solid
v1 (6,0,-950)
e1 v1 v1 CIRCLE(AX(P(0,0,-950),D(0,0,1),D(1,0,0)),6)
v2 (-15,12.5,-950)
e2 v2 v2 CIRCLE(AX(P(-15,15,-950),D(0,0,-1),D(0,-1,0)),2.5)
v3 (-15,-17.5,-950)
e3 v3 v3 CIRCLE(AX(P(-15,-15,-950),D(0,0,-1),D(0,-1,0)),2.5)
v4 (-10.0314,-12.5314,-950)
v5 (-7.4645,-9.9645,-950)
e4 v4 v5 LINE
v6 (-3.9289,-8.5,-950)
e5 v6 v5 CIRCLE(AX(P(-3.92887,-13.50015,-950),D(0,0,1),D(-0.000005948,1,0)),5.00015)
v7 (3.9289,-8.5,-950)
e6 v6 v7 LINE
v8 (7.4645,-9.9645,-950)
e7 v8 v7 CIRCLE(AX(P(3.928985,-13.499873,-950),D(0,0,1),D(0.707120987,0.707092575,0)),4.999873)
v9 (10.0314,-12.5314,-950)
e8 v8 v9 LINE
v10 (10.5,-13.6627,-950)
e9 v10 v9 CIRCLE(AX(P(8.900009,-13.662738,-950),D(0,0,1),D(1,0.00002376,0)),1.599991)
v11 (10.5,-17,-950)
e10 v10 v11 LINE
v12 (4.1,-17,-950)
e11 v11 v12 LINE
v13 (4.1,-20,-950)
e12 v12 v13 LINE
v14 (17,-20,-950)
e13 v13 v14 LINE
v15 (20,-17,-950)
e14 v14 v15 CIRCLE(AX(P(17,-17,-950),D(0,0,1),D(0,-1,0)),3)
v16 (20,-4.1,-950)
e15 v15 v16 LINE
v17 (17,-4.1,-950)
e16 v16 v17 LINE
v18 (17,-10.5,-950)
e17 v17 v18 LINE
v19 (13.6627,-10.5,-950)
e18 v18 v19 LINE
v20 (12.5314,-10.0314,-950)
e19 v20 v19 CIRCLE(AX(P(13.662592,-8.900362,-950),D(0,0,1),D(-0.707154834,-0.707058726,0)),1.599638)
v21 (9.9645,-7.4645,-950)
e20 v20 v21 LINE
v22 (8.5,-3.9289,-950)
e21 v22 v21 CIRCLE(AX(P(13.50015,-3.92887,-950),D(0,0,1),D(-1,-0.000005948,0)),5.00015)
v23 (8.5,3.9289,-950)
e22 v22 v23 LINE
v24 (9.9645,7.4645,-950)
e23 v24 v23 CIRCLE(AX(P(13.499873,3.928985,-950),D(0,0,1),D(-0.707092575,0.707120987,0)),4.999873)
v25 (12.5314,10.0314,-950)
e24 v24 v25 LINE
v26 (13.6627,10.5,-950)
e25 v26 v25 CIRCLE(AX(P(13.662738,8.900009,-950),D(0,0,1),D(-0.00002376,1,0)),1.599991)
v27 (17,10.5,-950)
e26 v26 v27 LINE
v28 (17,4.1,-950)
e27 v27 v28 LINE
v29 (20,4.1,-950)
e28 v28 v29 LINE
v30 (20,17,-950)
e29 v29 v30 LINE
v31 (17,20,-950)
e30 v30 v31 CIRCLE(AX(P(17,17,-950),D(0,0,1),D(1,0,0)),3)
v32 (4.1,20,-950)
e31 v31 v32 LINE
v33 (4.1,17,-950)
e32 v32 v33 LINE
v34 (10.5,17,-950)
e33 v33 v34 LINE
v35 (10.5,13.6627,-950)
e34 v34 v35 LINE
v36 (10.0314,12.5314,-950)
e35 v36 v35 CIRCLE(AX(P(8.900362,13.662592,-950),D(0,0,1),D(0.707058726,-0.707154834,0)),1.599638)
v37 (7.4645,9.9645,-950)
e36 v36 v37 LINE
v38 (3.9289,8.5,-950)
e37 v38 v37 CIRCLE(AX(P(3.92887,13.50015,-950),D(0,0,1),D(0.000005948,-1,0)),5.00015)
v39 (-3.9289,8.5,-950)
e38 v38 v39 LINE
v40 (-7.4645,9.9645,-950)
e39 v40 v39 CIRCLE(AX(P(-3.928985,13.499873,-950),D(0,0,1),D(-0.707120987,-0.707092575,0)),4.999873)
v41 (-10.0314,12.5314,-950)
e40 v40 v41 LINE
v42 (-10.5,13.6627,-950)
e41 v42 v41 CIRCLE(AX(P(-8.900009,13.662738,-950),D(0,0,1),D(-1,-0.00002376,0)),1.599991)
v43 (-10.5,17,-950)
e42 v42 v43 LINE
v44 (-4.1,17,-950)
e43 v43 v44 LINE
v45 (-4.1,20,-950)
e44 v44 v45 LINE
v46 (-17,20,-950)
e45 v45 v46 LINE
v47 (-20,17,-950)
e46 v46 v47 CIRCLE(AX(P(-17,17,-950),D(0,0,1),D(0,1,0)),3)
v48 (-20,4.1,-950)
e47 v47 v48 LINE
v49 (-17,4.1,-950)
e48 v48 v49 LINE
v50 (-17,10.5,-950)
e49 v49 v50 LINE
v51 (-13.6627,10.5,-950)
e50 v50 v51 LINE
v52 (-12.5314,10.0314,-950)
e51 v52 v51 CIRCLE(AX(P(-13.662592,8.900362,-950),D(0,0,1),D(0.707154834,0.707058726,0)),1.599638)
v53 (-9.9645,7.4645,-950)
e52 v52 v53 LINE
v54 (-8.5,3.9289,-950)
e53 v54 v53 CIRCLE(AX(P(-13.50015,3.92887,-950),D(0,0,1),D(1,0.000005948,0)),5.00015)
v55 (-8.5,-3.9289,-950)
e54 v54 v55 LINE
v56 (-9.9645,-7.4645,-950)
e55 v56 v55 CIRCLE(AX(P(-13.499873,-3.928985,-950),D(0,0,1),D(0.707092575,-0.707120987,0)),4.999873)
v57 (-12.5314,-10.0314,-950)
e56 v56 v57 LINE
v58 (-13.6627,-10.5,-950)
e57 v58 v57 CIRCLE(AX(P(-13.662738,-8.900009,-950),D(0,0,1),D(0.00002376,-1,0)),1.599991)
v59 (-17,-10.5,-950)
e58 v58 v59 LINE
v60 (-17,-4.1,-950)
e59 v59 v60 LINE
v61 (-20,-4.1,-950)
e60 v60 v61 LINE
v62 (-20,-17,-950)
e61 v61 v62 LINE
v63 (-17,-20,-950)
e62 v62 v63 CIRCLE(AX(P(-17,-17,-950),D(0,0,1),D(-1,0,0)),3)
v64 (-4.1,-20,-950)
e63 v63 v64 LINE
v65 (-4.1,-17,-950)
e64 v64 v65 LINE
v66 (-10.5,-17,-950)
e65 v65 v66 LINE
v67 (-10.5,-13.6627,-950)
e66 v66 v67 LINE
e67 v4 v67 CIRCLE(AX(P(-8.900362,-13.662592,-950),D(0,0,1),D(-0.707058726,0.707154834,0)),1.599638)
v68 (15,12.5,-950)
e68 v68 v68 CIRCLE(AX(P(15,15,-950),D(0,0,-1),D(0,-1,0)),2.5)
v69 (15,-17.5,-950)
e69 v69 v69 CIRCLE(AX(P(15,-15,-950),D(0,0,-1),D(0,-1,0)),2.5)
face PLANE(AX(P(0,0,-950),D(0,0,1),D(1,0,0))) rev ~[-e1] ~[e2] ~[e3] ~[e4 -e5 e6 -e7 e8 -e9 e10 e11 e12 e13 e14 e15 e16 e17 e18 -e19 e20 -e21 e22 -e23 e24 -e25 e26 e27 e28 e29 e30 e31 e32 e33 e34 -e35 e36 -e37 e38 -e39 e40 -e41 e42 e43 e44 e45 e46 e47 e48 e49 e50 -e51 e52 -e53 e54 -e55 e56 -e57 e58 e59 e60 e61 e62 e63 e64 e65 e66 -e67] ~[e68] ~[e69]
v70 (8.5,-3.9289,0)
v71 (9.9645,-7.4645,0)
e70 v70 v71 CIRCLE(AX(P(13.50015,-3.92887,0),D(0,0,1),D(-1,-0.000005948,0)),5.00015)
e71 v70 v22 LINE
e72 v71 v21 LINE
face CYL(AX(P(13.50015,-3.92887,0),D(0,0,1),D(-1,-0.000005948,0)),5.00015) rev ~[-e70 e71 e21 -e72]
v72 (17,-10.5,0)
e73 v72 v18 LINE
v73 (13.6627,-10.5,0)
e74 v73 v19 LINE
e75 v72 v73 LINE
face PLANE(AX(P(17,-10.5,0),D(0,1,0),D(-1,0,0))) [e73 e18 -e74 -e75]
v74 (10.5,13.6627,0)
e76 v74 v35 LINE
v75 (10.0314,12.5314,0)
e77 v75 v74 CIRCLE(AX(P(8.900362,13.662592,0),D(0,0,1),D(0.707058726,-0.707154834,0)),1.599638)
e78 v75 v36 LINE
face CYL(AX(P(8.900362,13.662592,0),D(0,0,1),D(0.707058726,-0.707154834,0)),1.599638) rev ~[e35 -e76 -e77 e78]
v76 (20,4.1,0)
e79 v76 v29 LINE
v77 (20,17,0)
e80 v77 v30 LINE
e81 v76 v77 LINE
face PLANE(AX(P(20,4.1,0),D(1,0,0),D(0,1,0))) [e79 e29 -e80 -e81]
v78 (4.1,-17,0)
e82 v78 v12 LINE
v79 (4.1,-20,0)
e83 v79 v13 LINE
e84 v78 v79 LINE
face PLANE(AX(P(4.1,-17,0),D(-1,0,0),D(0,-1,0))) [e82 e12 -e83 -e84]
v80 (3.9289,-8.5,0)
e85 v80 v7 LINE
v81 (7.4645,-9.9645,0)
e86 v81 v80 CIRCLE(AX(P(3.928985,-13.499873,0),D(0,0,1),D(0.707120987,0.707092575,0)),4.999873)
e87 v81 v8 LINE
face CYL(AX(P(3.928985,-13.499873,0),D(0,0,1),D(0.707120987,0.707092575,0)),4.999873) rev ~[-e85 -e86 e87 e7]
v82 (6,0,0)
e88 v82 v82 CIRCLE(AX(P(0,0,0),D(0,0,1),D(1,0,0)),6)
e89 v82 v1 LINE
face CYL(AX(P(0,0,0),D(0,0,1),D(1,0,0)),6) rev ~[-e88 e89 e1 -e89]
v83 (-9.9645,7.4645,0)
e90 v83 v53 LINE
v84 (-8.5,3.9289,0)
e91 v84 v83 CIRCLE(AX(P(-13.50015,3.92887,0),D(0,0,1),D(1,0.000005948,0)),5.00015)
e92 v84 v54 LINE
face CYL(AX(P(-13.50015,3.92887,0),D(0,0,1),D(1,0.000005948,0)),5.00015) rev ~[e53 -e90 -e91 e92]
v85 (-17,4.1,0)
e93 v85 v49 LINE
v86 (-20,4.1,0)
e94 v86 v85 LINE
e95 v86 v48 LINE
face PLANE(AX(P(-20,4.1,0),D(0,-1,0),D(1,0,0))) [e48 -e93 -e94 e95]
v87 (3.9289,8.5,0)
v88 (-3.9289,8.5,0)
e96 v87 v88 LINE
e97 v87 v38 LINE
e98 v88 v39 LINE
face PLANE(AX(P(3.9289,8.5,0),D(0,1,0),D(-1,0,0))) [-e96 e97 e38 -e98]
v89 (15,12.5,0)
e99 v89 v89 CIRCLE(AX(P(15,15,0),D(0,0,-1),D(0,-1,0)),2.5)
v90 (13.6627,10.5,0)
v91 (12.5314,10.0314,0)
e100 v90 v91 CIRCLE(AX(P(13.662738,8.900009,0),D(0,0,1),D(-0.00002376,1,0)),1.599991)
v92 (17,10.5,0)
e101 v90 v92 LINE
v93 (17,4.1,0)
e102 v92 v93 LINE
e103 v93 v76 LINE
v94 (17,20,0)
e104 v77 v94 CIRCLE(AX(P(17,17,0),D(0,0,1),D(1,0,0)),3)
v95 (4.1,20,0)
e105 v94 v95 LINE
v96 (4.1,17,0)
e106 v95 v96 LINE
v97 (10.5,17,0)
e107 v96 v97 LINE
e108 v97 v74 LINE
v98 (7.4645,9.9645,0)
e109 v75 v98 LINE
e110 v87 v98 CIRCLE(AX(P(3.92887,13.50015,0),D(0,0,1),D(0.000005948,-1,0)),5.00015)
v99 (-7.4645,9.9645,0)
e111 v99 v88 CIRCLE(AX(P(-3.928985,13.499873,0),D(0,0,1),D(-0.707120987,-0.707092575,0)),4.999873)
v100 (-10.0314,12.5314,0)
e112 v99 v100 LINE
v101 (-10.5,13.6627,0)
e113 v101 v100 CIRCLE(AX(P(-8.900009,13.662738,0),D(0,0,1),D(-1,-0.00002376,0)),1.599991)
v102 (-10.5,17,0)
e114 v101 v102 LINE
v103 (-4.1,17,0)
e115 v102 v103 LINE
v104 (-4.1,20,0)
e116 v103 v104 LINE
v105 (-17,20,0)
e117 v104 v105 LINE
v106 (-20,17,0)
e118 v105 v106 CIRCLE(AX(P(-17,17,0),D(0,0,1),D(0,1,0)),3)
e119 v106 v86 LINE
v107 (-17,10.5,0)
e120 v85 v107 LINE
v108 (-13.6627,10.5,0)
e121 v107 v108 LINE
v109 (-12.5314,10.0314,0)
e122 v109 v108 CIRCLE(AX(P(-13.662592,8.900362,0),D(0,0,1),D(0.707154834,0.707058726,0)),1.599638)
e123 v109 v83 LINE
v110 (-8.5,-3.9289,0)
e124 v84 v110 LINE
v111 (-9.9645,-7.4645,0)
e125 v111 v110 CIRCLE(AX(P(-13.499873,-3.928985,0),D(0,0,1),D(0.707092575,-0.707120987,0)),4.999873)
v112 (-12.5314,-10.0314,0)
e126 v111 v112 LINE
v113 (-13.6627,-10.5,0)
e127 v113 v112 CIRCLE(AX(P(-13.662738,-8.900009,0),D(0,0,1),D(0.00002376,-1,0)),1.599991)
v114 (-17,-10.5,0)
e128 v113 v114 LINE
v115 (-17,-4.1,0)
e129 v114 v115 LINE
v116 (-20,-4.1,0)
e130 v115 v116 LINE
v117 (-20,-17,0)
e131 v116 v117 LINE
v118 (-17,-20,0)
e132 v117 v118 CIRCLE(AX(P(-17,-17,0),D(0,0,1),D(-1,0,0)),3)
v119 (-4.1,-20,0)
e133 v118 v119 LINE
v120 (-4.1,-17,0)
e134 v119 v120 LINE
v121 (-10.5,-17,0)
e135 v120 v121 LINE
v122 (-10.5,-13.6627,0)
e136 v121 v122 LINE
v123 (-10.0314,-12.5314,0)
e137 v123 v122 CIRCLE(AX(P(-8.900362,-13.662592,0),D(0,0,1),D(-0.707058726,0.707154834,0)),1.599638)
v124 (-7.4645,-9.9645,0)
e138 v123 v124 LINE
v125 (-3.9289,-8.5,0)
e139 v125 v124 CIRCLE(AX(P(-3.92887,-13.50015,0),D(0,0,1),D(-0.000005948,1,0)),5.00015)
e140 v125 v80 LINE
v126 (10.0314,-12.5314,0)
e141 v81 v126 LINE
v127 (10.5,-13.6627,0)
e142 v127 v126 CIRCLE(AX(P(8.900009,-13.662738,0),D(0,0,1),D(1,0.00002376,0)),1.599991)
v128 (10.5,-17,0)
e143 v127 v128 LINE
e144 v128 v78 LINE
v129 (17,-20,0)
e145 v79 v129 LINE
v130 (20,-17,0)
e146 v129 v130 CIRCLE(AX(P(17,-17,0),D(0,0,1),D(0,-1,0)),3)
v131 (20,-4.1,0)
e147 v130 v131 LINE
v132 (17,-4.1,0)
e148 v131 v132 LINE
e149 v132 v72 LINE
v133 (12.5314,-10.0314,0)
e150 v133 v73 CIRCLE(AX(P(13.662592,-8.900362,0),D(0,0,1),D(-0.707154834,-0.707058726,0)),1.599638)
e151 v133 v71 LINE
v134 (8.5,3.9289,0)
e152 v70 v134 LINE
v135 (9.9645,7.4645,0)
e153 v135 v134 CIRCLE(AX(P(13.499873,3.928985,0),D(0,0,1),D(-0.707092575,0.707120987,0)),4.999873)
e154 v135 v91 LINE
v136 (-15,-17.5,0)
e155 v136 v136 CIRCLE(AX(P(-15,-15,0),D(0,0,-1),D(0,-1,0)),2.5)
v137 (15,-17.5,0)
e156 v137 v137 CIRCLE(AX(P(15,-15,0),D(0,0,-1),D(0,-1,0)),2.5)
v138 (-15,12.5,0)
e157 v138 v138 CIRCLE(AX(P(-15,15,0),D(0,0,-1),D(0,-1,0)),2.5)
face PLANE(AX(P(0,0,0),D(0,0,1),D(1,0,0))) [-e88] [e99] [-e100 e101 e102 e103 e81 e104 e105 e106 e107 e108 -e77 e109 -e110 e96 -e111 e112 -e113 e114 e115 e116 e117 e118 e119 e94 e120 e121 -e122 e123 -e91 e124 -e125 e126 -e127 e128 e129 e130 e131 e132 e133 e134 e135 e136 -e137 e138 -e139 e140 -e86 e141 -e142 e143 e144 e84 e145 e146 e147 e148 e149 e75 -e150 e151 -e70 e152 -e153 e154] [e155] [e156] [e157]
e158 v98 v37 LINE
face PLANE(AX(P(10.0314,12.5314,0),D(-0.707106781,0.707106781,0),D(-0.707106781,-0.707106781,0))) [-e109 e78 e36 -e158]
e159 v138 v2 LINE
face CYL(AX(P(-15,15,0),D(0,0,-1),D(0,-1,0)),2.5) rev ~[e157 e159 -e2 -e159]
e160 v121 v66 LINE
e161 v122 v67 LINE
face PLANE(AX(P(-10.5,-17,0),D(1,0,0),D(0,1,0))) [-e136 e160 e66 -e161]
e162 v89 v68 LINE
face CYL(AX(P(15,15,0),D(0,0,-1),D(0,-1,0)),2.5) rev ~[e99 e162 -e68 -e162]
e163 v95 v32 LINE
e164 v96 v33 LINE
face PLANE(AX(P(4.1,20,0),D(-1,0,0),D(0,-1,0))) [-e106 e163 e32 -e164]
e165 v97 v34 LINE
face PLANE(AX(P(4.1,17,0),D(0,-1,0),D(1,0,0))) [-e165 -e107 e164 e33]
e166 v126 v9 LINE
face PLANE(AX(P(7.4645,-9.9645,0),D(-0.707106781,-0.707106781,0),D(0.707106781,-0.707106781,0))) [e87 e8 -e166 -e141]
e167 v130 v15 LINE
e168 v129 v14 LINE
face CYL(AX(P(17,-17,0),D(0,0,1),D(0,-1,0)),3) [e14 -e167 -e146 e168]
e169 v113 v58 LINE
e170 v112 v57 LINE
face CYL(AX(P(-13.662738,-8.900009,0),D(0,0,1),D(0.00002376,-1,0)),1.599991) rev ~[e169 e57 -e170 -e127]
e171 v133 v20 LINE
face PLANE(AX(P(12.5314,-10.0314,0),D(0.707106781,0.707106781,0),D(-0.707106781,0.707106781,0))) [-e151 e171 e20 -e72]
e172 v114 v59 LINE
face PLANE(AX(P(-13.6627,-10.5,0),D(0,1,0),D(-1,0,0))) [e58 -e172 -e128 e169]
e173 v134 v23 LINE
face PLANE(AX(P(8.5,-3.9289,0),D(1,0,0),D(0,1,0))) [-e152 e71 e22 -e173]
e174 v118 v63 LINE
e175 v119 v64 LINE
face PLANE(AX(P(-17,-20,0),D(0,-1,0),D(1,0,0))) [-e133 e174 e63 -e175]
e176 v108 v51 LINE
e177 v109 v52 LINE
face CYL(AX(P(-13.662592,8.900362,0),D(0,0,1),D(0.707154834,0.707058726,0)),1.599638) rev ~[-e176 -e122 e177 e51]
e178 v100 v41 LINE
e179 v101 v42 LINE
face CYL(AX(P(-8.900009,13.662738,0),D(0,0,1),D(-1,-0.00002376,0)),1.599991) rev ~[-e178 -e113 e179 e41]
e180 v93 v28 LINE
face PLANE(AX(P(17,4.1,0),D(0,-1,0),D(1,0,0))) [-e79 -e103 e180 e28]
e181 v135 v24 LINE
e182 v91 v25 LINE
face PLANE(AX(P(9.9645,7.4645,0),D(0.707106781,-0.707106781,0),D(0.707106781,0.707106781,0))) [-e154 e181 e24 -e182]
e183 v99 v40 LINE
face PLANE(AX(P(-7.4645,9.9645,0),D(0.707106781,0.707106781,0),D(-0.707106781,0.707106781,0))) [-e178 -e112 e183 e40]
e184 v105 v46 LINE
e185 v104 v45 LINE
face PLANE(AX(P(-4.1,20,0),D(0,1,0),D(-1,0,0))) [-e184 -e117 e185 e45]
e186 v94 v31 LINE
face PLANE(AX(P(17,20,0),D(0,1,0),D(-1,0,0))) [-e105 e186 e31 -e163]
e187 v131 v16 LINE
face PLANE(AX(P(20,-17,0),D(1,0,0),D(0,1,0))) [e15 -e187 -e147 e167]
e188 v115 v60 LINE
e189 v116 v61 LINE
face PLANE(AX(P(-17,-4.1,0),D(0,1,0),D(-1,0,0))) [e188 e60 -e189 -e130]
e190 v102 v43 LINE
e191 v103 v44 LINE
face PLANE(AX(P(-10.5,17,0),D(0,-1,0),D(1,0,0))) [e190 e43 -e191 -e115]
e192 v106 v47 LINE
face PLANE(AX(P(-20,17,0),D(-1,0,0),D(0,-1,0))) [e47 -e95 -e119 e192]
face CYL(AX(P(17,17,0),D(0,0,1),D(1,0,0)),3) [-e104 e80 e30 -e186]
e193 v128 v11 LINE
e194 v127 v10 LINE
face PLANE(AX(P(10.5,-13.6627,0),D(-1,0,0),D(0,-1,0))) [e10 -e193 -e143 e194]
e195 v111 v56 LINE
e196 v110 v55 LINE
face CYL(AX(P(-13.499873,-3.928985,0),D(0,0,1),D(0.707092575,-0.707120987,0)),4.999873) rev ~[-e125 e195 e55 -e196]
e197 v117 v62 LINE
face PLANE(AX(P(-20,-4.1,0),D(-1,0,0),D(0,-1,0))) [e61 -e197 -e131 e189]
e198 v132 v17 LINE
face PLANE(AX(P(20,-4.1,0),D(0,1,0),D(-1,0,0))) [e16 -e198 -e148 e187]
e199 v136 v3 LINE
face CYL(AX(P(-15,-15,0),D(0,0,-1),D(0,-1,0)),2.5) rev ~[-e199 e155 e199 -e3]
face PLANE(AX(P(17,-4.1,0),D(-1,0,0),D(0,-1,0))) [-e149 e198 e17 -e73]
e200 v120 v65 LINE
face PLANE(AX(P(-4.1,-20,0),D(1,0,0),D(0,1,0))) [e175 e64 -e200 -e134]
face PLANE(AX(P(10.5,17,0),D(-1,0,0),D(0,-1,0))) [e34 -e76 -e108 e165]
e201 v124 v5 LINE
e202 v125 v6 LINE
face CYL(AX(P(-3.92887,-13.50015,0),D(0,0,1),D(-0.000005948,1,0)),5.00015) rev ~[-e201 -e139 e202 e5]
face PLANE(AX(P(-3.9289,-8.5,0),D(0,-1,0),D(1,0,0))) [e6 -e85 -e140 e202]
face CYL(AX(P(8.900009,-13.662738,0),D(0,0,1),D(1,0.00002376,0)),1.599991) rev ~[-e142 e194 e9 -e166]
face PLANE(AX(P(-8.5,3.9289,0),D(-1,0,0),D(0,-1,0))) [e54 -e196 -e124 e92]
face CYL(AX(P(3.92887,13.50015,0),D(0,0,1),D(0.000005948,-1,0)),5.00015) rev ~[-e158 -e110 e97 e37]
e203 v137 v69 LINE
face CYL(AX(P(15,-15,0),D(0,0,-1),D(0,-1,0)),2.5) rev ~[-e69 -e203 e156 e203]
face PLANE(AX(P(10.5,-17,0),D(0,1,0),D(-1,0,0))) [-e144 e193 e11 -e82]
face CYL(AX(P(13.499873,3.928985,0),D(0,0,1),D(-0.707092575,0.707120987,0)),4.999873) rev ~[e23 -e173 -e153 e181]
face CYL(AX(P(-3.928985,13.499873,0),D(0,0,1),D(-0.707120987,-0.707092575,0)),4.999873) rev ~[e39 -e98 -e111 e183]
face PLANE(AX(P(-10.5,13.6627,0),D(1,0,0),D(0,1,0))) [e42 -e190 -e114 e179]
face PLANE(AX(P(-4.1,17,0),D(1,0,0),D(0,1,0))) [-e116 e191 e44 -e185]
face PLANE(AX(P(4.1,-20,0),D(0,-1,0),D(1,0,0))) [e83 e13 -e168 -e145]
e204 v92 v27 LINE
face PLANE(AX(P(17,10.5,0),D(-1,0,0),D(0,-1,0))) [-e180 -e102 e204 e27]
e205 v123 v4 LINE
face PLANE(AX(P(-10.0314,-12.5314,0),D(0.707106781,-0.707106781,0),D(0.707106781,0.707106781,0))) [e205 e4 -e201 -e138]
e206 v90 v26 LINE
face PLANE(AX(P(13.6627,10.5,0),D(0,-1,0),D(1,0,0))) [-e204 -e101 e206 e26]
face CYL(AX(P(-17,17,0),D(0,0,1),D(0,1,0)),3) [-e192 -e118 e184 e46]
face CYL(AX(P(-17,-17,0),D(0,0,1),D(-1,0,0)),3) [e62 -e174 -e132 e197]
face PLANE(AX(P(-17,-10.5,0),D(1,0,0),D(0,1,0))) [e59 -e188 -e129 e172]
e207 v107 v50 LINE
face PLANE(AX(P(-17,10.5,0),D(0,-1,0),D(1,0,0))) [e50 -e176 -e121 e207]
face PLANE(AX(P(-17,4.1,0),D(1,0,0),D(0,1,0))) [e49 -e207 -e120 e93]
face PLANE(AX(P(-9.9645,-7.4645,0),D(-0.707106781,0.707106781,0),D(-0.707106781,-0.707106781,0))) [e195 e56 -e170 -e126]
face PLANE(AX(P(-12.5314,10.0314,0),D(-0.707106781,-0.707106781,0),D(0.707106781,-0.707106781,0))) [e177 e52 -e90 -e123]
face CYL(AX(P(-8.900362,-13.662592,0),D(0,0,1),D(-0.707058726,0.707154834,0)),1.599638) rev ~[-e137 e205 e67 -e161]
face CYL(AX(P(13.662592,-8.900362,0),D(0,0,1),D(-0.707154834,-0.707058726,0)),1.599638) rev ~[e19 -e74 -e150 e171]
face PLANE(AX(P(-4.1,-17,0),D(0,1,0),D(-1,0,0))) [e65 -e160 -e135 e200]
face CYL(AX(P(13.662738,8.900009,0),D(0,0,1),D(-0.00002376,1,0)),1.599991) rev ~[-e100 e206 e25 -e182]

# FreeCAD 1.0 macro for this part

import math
import FreeCAD as App
import Part
import Sketcher
from FreeCAD import Vector
Q = App.Units.Quantity

doc = App.newDocument("Part")
body = doc.addObject("PartDesign::Body", "Body")

# Sketch on XY plane
sketch1 = body.newObject("Sketcher::SketchObject", "Sketch")
sketch1.AttachmentSupport = (doc.getObject("XY_Plane"), [""])
sketch1.MapMode = "FlatFace"
sketch1.addGeometry(Part.LineSegment(Vector(-20, -4.1, 0), Vector(-20, -17, 0)), False)
sketch1.addGeometry(Part.ArcOfCircle(Part.Circle(Vector(-17, -17, 0), Vector(0, 0, 1), 3), math.radians(180), math.radians(270)), False)
sketch1.addGeometry(Part.LineSegment(Vector(-17, -20, 0), Vector(-4.1, -20, 0)), False)
sketch1.addGeometry(Part.LineSegment(Vector(-4.1, -20, 0), Vector(-4.1, -17, 0)), False)
sketch1.addGeometry(Part.LineSegment(Vector(-4.1, -17, 0), Vector(-10.5, -17, 0)), False)
sketch1.addGeometry(Part.LineSegment(Vector(-10.5, -17, 0), Vector(-10.5, -13.7, 0)), False)
sketch1.addGeometry(Part.ArcOfCircle(Part.Circle(Vector(-8.9, -13.7, 0), Vector(0, 0, 1), 1.6), math.radians(135), math.radians(180)), False)
sketch1.addGeometry(Part.LineSegment(Vector(-10, -12.5, 0), Vector(-7.5, -10, 0)), False)
sketch1.addGeometry(Part.ArcOfCircle(Part.Circle(Vector(-3.9, -13.5, 0), Vector(0, 0, 1), 5), math.radians(90), math.radians(135)), False)
sketch1.addGeometry(Part.LineSegment(Vector(-3.9, -8.5, 0), Vector(3.9, -8.5, 0)), False)
sketch1.addGeometry(Part.ArcOfCircle(Part.Circle(Vector(3.9, -13.5, 0), Vector(0, 0, 1), 5), math.radians(45), math.radians(90)), False)
sketch1.addGeometry(Part.LineSegment(Vector(7.5, -10, 0), Vector(10, -12.5, 0)), False)
sketch1.addGeometry(Part.ArcOfCircle(Part.Circle(Vector(8.9, -13.7, 0), Vector(0, 0, 1), 1.6), math.radians(0), math.radians(45)), False)
sketch1.addGeometry(Part.LineSegment(Vector(10.5, -13.7, 0), Vector(10.5, -17, 0)), False)
sketch1.addGeometry(Part.LineSegment(Vector(10.5, -17, 0), Vector(4.1, -17, 0)), False)
sketch1.addGeometry(Part.LineSegment(Vector(4.1, -17, 0), Vector(4.1, -20, 0)), False)
sketch1.addGeometry(Part.LineSegment(Vector(4.1, -20, 0), Vector(17, -20, 0)), False)
sketch1.addGeometry(Part.ArcOfCircle(Part.Circle(Vector(17, -17, 0), Vector(0, 0, 1), 3), math.radians(-90), math.radians(0)), False)
sketch1.addGeometry(Part.LineSegment(Vector(20, -17, 0), Vector(20, -4.1, 0)), False)
sketch1.addGeometry(Part.LineSegment(Vector(20, -4.1, 0), Vector(17, -4.1, 0)), False)
sketch1.addGeometry(Part.LineSegment(Vector(17, -4.1, 0), Vector(17, -10.5, 0)), False)
sketch1.addGeometry(Part.LineSegment(Vector(17, -10.5, 0), Vector(13.7, -10.5, 0)), False)
sketch1.addGeometry(Part.ArcOfCircle(Part.Circle(Vector(13.7, -8.9, 0), Vector(0, 0, 1), 1.6), math.radians(-135), math.radians(-90)), False)
sketch1.addGeometry(Part.LineSegment(Vector(12.5, -10, 0), Vector(10, -7.5, 0)), False)
sketch1.addGeometry(Part.ArcOfCircle(Part.Circle(Vector(13.5, -3.9, 0), Vector(0, 0, 1), 5), math.radians(180), math.radians(225)), False)
sketch1.addGeometry(Part.LineSegment(Vector(8.5, -3.9, 0), Vector(8.5, 3.9, 0)), False)
sketch1.addGeometry(Part.ArcOfCircle(Part.Circle(Vector(13.5, 3.9, 0), Vector(0, 0, 1), 5), math.radians(135), math.radians(180)), False)
sketch1.addGeometry(Part.LineSegment(Vector(10, 7.5, 0), Vector(12.5, 10, 0)), False)
sketch1.addGeometry(Part.ArcOfCircle(Part.Circle(Vector(13.7, 8.9, 0), Vector(0, 0, 1), 1.6), math.radians(90), math.radians(135)), False)
sketch1.addGeometry(Part.LineSegment(Vector(13.7, 10.5, 0), Vector(17, 10.5, 0)), False)
sketch1.addGeometry(Part.LineSegment(Vector(17, 10.5, 0), Vector(17, 4.1, 0)), False)
sketch1.addGeometry(Part.LineSegment(Vector(17, 4.1, 0), Vector(20, 4.1, 0)), False)
sketch1.addGeometry(Part.LineSegment(Vector(20, 4.1, 0), Vector(20, 17, 0)), False)
sketch1.addGeometry(Part.ArcOfCircle(Part.Circle(Vector(17, 17, 0), Vector(0, 0, 1), 3), math.radians(0), math.radians(90)), False)
sketch1.addGeometry(Part.LineSegment(Vector(17, 20, 0), Vector(4.1, 20, 0)), False)
sketch1.addGeometry(Part.LineSegment(Vector(4.1, 20, 0), Vector(4.1, 17, 0)), False)
sketch1.addGeometry(Part.LineSegment(Vector(4.1, 17, 0), Vector(10.5, 17, 0)), False)
sketch1.addGeometry(Part.LineSegment(Vector(10.5, 17, 0), Vector(10.5, 13.7, 0)), False)
sketch1.addGeometry(Part.ArcOfCircle(Part.Circle(Vector(8.9, 13.7, 0), Vector(0, 0, 1), 1.6), math.radians(-45), math.radians(0)), False)
sketch1.addGeometry(Part.LineSegment(Vector(10, 12.5, 0), Vector(7.5, 10, 0)), False)
sketch1.addGeometry(Part.ArcOfCircle(Part.Circle(Vector(3.9, 13.5, 0), Vector(0, 0, 1), 5), math.radians(-90), math.radians(-45)), False)
sketch1.addGeometry(Part.LineSegment(Vector(3.9, 8.5, 0), Vector(-3.9, 8.5, 0)), False)
sketch1.addGeometry(Part.ArcOfCircle(Part.Circle(Vector(-3.9, 13.5, 0), Vector(0, 0, 1), 5), math.radians(-135), math.radians(-90)), False)
sketch1.addGeometry(Part.LineSegment(Vector(-7.5, 10, 0), Vector(-10, 12.5, 0)), False)
sketch1.addGeometry(Part.ArcOfCircle(Part.Circle(Vector(-8.9, 13.7, 0), Vector(0, 0, 1), 1.6), math.radians(180), math.radians(225)), False)
sketch1.addGeometry(Part.LineSegment(Vector(-10.5, 13.7, 0), Vector(-10.5, 17, 0)), False)
sketch1.addGeometry(Part.LineSegment(Vector(-10.5, 17, 0), Vector(-4.1, 17, 0)), False)
sketch1.addGeometry(Part.LineSegment(Vector(-4.1, 17, 0), Vector(-4.1, 20, 0)), False)
sketch1.addGeometry(Part.LineSegment(Vector(-4.1, 20, 0), Vector(-17, 20, 0)), False)
sketch1.addGeometry(Part.ArcOfCircle(Part.Circle(Vector(-17, 17, 0), Vector(0, 0, 1), 3), math.radians(90), math.radians(180)), False)
sketch1.addGeometry(Part.LineSegment(Vector(-20, 17, 0), Vector(-20, 4.1, 0)), False)
sketch1.addGeometry(Part.LineSegment(Vector(-20, 4.1, 0), Vector(-17, 4.1, 0)), False)
sketch1.addGeometry(Part.LineSegment(Vector(-17, 4.1, 0), Vector(-17, 10.5, 0)), False)
sketch1.addGeometry(Part.LineSegment(Vector(-17, 10.5, 0), Vector(-13.7, 10.5, 0)), False)
sketch1.addGeometry(Part.ArcOfCircle(Part.Circle(Vector(-13.7, 8.9, 0), Vector(0, 0, 1), 1.6), math.radians(45), math.radians(90)), False)
sketch1.addGeometry(Part.LineSegment(Vector(-12.5, 10, 0), Vector(-10, 7.5, 0)), False)
sketch1.addGeometry(Part.ArcOfCircle(Part.Circle(Vector(-13.5, 3.9, 0), Vector(0, 0, 1), 5), math.radians(0), math.radians(45)), False)
sketch1.addGeometry(Part.LineSegment(Vector(-8.5, 3.9, 0), Vector(-8.5, -3.9, 0)), False)
sketch1.addGeometry(Part.ArcOfCircle(Part.Circle(Vector(-13.5, -3.9, 0), Vector(0, 0, 1), 5), math.radians(-45), math.radians(0)), False)
sketch1.addGeometry(Part.LineSegment(Vector(-10, -7.5, 0), Vector(-12.5, -10, 0)), False)
sketch1.addGeometry(Part.ArcOfCircle(Part.Circle(Vector(-13.7, -8.9, 0), Vector(0, 0, 1), 1.6), math.radians(-90), math.radians(-45)), False)
sketch1.addGeometry(Part.LineSegment(Vector(-13.7, -10.5, 0), Vector(-17, -10.5, 0)), False)
sketch1.addGeometry(Part.LineSegment(Vector(-17, -10.5, 0), Vector(-17, -4.1, 0)), False)
sketch1.addGeometry(Part.LineSegment(Vector(-17, -4.1, 0), Vector(-20, -4.1, 0)), False)
sketch1.addGeometry(Part.Circle(Vector(0, 0, 0), Vector(0, 0, 1), 6), False)
sketch1.addConstraint(Sketcher.Constraint("Tangent", 0, 2, 1, 1))
sketch1.addConstraint(Sketcher.Constraint("Tangent", 1, 2, 2, 1))
sketch1.addConstraint(Sketcher.Constraint("Coincident", 2, 2, 3, 1))
sketch1.addConstraint(Sketcher.Constraint("Coincident", 3, 2, 4, 1))
sketch1.addConstraint(Sketcher.Constraint("Coincident", 4, 2, 5, 1))
sketch1.addConstraint(Sketcher.Constraint("Tangent", 5, 2, 6, 2))
sketch1.addConstraint(Sketcher.Constraint("Tangent", 6, 1, 7, 1))
sketch1.addConstraint(Sketcher.Constraint("Tangent", 7, 2, 8, 2))
sketch1.addConstraint(Sketcher.Constraint("Tangent", 8, 1, 9, 1))
sketch1.addConstraint(Sketcher.Constraint("Tangent", 9, 2, 10, 2))
sketch1.addConstraint(Sketcher.Constraint("Tangent", 10, 1, 11, 1))
sketch1.addConstraint(Sketcher.Constraint("Tangent", 11, 2, 12, 2))
sketch1.addConstraint(Sketcher.Constraint("Tangent", 12, 1, 13, 1))
sketch1.addConstraint(Sketcher.Constraint("Coincident", 13, 2, 14, 1))
sketch1.addConstraint(Sketcher.Constraint("Coincident", 14, 2, 15, 1))
sketch1.addConstraint(Sketcher.Constraint("Coincident", 15, 2, 16, 1))
sketch1.addConstraint(Sketcher.Constraint("Tangent", 16, 2, 17, 1))
sketch1.addConstraint(Sketcher.Constraint("Tangent", 17, 2, 18, 1))
sketch1.addConstraint(Sketcher.Constraint("Coincident", 18, 2, 19, 1))
sketch1.addConstraint(Sketcher.Constraint("Coincident", 19, 2, 20, 1))
sketch1.addConstraint(Sketcher.Constraint("Coincident", 20, 2, 21, 1))
sketch1.addConstraint(Sketcher.Constraint("Tangent", 21, 2, 22, 2))
sketch1.addConstraint(Sketcher.Constraint("Tangent", 22, 1, 23, 1))
sketch1.addConstraint(Sketcher.Constraint("Tangent", 23, 2, 24, 2))
sketch1.addConstraint(Sketcher.Constraint("Tangent", 24, 1, 25, 1))
sketch1.addConstraint(Sketcher.Constraint("Tangent", 25, 2, 26, 2))
sketch1.addConstraint(Sketcher.Constraint("Tangent", 26, 1, 27, 1))
sketch1.addConstraint(Sketcher.Constraint("Tangent", 27, 2, 28, 2))
sketch1.addConstraint(Sketcher.Constraint("Tangent", 28, 1, 29, 1))
sketch1.addConstraint(Sketcher.Constraint("Coincident", 29, 2, 30, 1))
sketch1.addConstraint(Sketcher.Constraint("Coincident", 30, 2, 31, 1))
sketch1.addConstraint(Sketcher.Constraint("Coincident", 31, 2, 32, 1))
sketch1.addConstraint(Sketcher.Constraint("Tangent", 32, 2, 33, 1))
sketch1.addConstraint(Sketcher.Constraint("Tangent", 33, 2, 34, 1))
sketch1.addConstraint(Sketcher.Constraint("Coincident", 34, 2, 35, 1))
sketch1.addConstraint(Sketcher.Constraint("Coincident", 35, 2, 36, 1))
sketch1.addConstraint(Sketcher.Constraint("Coincident", 36, 2, 37, 1))
sketch1.addConstraint(Sketcher.Constraint("Tangent", 37, 2, 38, 2))
sketch1.addConstraint(Sketcher.Constraint("Tangent", 38, 1, 39, 1))
sketch1.addConstraint(Sketcher.Constraint("Tangent", 39, 2, 40, 2))
sketch1.addConstraint(Sketcher.Constraint("Tangent", 40, 1, 41, 1))
sketch1.addConstraint(Sketcher.Constraint("Tangent", 41, 2, 42, 2))
sketch1.addConstraint(Sketcher.Constraint("Tangent", 42, 1, 43, 1))
sketch1.addConstraint(Sketcher.Constraint("Tangent", 43, 2, 44, 2))
sketch1.addConstraint(Sketcher.Constraint("Tangent", 44, 1, 45, 1))
sketch1.addConstraint(Sketcher.Constraint("Coincident", 45, 2, 46, 1))
sketch1.addConstraint(Sketcher.Constraint("Coincident", 46, 2, 47, 1))
sketch1.addConstraint(Sketcher.Constraint("Coincident", 47, 2, 48, 1))
sketch1.addConstraint(Sketcher.Constraint("Tangent", 48, 2, 49, 1))
sketch1.addConstraint(Sketcher.Constraint("Tangent", 49, 2, 50, 1))
sketch1.addConstraint(Sketcher.Constraint("Coincident", 50, 2, 51, 1))
sketch1.addConstraint(Sketcher.Constraint("Coincident", 51, 2, 52, 1))
sketch1.addConstraint(Sketcher.Constraint("Coincident", 52, 2, 53, 1))
sketch1.addConstraint(Sketcher.Constraint("Tangent", 53, 2, 54, 2))
sketch1.addConstraint(Sketcher.Constraint("Tangent", 54, 1, 55, 1))
sketch1.addConstraint(Sketcher.Constraint("Tangent", 55, 2, 56, 2))
sketch1.addConstraint(Sketcher.Constraint("Tangent", 56, 1, 57, 1))
sketch1.addConstraint(Sketcher.Constraint("Tangent", 57, 2, 58, 2))
sketch1.addConstraint(Sketcher.Constraint("Tangent", 58, 1, 59, 1))
sketch1.addConstraint(Sketcher.Constraint("Tangent", 59, 2, 60, 2))
sketch1.addConstraint(Sketcher.Constraint("Tangent", 60, 1, 61, 1))
sketch1.addConstraint(Sketcher.Constraint("Coincident", 61, 2, 62, 1))
sketch1.addConstraint(Sketcher.Constraint("Coincident", 62, 2, 63, 1))
sketch1.addConstraint(Sketcher.Constraint("Coincident", 63, 2, 0, 1))
sketch1.addConstraint(Sketcher.Constraint("Vertical", 0))
sketch1.addConstraint(Sketcher.Constraint("Horizontal", 2))
sketch1.addConstraint(Sketcher.Constraint("Vertical", 3))
sketch1.addConstraint(Sketcher.Constraint("Horizontal", 4))
sketch1.addConstraint(Sketcher.Constraint("Vertical", 5))
sketch1.addConstraint(Sketcher.Constraint("Horizontal", 9))
sketch1.addConstraint(Sketcher.Constraint("Vertical", 13))
sketch1.addConstraint(Sketcher.Constraint("Horizontal", 14))
sketch1.addConstraint(Sketcher.Constraint("Vertical", 15))
sketch1.addConstraint(Sketcher.Constraint("Horizontal", 16))
sketch1.addConstraint(Sketcher.Constraint("Vertical", 18))
sketch1.addConstraint(Sketcher.Constraint("Horizontal", 19))
sketch1.addConstraint(Sketcher.Constraint("Vertical", 20))
sketch1.addConstraint(Sketcher.Constraint("Horizontal", 21))
sketch1.addConstraint(Sketcher.Constraint("Vertical", 25))
sketch1.addConstraint(Sketcher.Constraint("Horizontal", 29))
sketch1.addConstraint(Sketcher.Constraint("Vertical", 30))
sketch1.addConstraint(Sketcher.Constraint("Horizontal", 31))
sketch1.addConstraint(Sketcher.Constraint("Vertical", 32))
sketch1.addConstraint(Sketcher.Constraint("Horizontal", 34))
sketch1.addConstraint(Sketcher.Constraint("Vertical", 35))
sketch1.addConstraint(Sketcher.Constraint("Horizontal", 36))
sketch1.addConstraint(Sketcher.Constraint("Vertical", 37))
sketch1.addConstraint(Sketcher.Constraint("Horizontal", 41))
sketch1.addConstraint(Sketcher.Constraint("Vertical", 45))
sketch1.addConstraint(Sketcher.Constraint("Horizontal", 46))
sketch1.addConstraint(Sketcher.Constraint("Vertical", 47))
sketch1.addConstraint(Sketcher.Constraint("Horizontal", 48))
sketch1.addConstraint(Sketcher.Constraint("Vertical", 50))
sketch1.addConstraint(Sketcher.Constraint("Horizontal", 51))
sketch1.addConstraint(Sketcher.Constraint("Vertical", 52))
sketch1.addConstraint(Sketcher.Constraint("Horizontal", 53))
sketch1.addConstraint(Sketcher.Constraint("Vertical", 57))
sketch1.addConstraint(Sketcher.Constraint("Horizontal", 61))
sketch1.addConstraint(Sketcher.Constraint("Vertical", 62))
sketch1.addConstraint(Sketcher.Constraint("Horizontal", 63))
sketch1.addConstraint(Sketcher.Constraint("Coincident", 64, 3, -1, 1))
sketch1.addConstraint(Sketcher.Constraint("Equal", 8, 10))
sketch1.addConstraint(Sketcher.Constraint("Equal", 6, 12))
sketch1.addConstraint(Sketcher.Constraint("Equal", 1, 17))
sketch1.addConstraint(Sketcher.Constraint("Equal", 12, 22))
sketch1.addConstraint(Sketcher.Constraint("Equal", 10, 24))
sketch1.addConstraint(Sketcher.Constraint("Equal", 24, 26))
sketch1.addConstraint(Sketcher.Constraint("Equal", 22, 28))
sketch1.addConstraint(Sketcher.Constraint("Equal", 17, 33))
sketch1.addConstraint(Sketcher.Constraint("Equal", 28, 38))
sketch1.addConstraint(Sketcher.Constraint("Equal", 26, 40))
sketch1.addConstraint(Sketcher.Constraint("Equal", 40, 42))
sketch1.addConstraint(Sketcher.Constraint("Equal", 38, 44))
sketch1.addConstraint(Sketcher.Constraint("Equal", 33, 49))
sketch1.addConstraint(Sketcher.Constraint("Equal", 44, 54))
sketch1.addConstraint(Sketcher.Constraint("Equal", 42, 56))
sketch1.addConstraint(Sketcher.Constraint("Equal", 56, 58))
sketch1.addConstraint(Sketcher.Constraint("Equal", 54, 60))
sketch1.addConstraint(Sketcher.Constraint("Symmetric", 1, 3, 33, 3, -1, 1))
sketch1.addConstraint(Sketcher.Constraint("Symmetric", 6, 3, 38, 3, -1, 1))
sketch1.addConstraint(Sketcher.Constraint("Symmetric", 8, 3, 40, 3, -1, 1))
sketch1.addConstraint(Sketcher.Constraint("Symmetric", 12, 3, 44, 3, -1, 1))
sketch1.addConstraint(Sketcher.Constraint("Symmetric", 17, 3, 49, 3, -1, 1))
sketch1.addConstraint(Sketcher.Constraint("Symmetric", 22, 3, 54, 3, -1, 1))
sketch1.addConstraint(Sketcher.Constraint("Symmetric", 24, 3, 56, 3, -1, 1))
sketch1.addConstraint(Sketcher.Constraint("Symmetric", 28, 3, 60, 3, -1, 1))
sketch1.addConstraint(Sketcher.Constraint("Symmetric", 3, 2, 35, 2, -1, 1))
sketch1.addConstraint(Sketcher.Constraint("Symmetric", 14, 2, 46, 2, -1, 1))
sketch1.addConstraint(Sketcher.Constraint("Symmetric", 19, 2, 51, 2, -1, 1))
sketch1.addConstraint(Sketcher.Constraint("Symmetric", 30, 2, 62, 2, -1, 1))
sketch1.addConstraint(Sketcher.Constraint("Symmetric", 6, 3, 12, 3, -2))
sketch1.addConstraint(Sketcher.Constraint("Symmetric", 1, 3, 17, 3, -2))
sketch1.addConstraint(Sketcher.Constraint("Symmetric", 28, 3, 54, 3, -2))
sketch1.addConstraint(Sketcher.Constraint("Symmetric", 3, 2, 14, 2, -2))
sketch1.addConstraint(Sketcher.Constraint("Symmetric", 30, 2, 51, 2, -2))
sketch1.addConstraint(Sketcher.Constraint("Perpendicular", 7, 11))
sketch1.addConstraint(Sketcher.Constraint("Parallel", 11, 23))
sketch1.addConstraint(Sketcher.Constraint("Perpendicular", 23, 27))
sketch1.addConstraint(Sketcher.Constraint("Perpendicular", 39, 43))
sketch1.addConstraint(Sketcher.Constraint("Perpendicular", 55, 59))
sketch1.addConstraint(Sketcher.Constraint("Horizontal", 26, 3, 56, 3))
sketch1.addConstraint(Sketcher.Constraint("Horizontal", 0, 2, 3, 2))
sketch1.addConstraint(Sketcher.Constraint("Vertical", 16, 2, 19, 2))
sketch1.addConstraint(Sketcher.Constraint("Equal", 48, 0))
sketch1.addConstraint(Sketcher.Constraint("Equal", 61, 5))
sketch1.addConstraint(Sketcher.Constraint("Equal", 46, 20))
sketch1.addConstraint(Sketcher.Constraint("Equal", 41, 25))
sketch1.addConstraint(Sketcher.Constraint("Equal", 11, 23))
sketch1.addConstraint(Sketcher.Constraint("Diameter", 64, Q("12 mm")))
sketch1.addConstraint(Sketcher.Constraint("Radius", 1, Q("3 mm")))
sketch1.addConstraint(Sketcher.Constraint("Radius", 8, Q("5 mm")))
sketch1.addConstraint(Sketcher.Constraint("DistanceX", 2, 1, 2, 2, Q("12.9 mm")))
sketch1.addConstraint(Sketcher.Constraint("DistanceX", 4, 2, 4, 1, Q("6.4 mm")))
sketch1.addConstraint(Sketcher.Constraint("DistanceX", 1, 3, -1, 1, Q("17 mm")))
sketch1.addConstraint(Sketcher.Constraint("DistanceY", 8, 3, -1, 1, Q("13.5 mm")))
sketch1.addConstraint(Sketcher.Constraint("Radius", 6, Q("1.5998 mm")))
sketch1.addConstraint(Sketcher.Constraint("DistanceX", 9, 1, 9, 2, Q("7.8578 mm")))
pad1 = body.newObject("PartDesign::Pad", "Pad")
pad1.Profile = sketch1
pad1.Length = 950
pad1.Reversed = True

# Sketch on XY plane
sketch2 = body.newObject("Sketcher::SketchObject", "Sketch001")
sketch2.AttachmentSupport = (doc.getObject("XY_Plane"), [""])
sketch2.MapMode = "FlatFace"
sketch2.addGeometry(Part.Circle(Vector(-15, -15, 0), Vector(0, 0, 1), 2.5), False)
sketch2.addConstraint(Sketcher.Constraint("Diameter", 0, Q("5 mm")))
sketch2.addConstraint(Sketcher.Constraint("DistanceX", 0, 3, -1, 1, Q("15 mm")))
sketch2.addConstraint(Sketcher.Constraint("DistanceY", 0, 3, -1, 1, Q("15 mm")))
doc.recompute()
hole = body.newObject("PartDesign::Hole", "Hole")
hole.Profile = sketch2
hole.ThreadType = "None"
hole.Diameter = 5
hole.DepthType = "Dimension"
hole.Depth = 6000
hole.DrillPoint = "Flat"

# Sketch on XY plane
sketch3 = body.newObject("Sketcher::SketchObject", "Sketch002")
sketch3.AttachmentSupport = (doc.getObject("XY_Plane"), [""])
sketch3.MapMode = "FlatFace"
sketch3.addGeometry(Part.Circle(Vector(15, -15, 0), Vector(0, 0, 1), 2.5), False)
sketch3.addConstraint(Sketcher.Constraint("Diameter", 0, Q("5 mm")))
sketch3.addConstraint(Sketcher.Constraint("DistanceX", -1, 1, 0, 3, Q("15 mm")))
sketch3.addConstraint(Sketcher.Constraint("DistanceY", 0, 3, -1, 1, Q("15 mm")))
doc.recompute()
hole2 = body.newObject("PartDesign::Hole", "Hole001")
hole2.Profile = sketch3
hole2.ThreadType = "None"
hole2.Diameter = 5
hole2.DepthType = "Dimension"
hole2.Depth = 6000
hole2.DrillPoint = "Flat"

# Sketch on XY plane
sketch4 = body.newObject("Sketcher::SketchObject", "Sketch003")
sketch4.AttachmentSupport = (doc.getObject("XY_Plane"), [""])
sketch4.MapMode = "FlatFace"
sketch4.addGeometry(Part.Circle(Vector(15, 15, 0), Vector(0, 0, 1), 2.5), False)
sketch4.addConstraint(Sketcher.Constraint("Diameter", 0, Q("5 mm")))
sketch4.addConstraint(Sketcher.Constraint("DistanceX", -1, 1, 0, 3, Q("15 mm")))
sketch4.addConstraint(Sketcher.Constraint("DistanceY", -1, 1, 0, 3, Q("15 mm")))
doc.recompute()
hole3 = body.newObject("PartDesign::Hole", "Hole002")
hole3.Profile = sketch4
hole3.ThreadType = "None"
hole3.Diameter = 5
hole3.DepthType = "Dimension"
hole3.Depth = 6000
hole3.DrillPoint = "Flat"

# Sketch on XY plane
sketch5 = body.newObject("Sketcher::SketchObject", "Sketch004")
sketch5.AttachmentSupport = (doc.getObject("XY_Plane"), [""])
sketch5.MapMode = "FlatFace"
sketch5.addGeometry(Part.Circle(Vector(-15, 15, 0), Vector(0, 0, 1), 2.5), False)
sketch5.addConstraint(Sketcher.Constraint("Diameter", 0, Q("5 mm")))
sketch5.addConstraint(Sketcher.Constraint("DistanceX", 0, 3, -1, 1, Q("15 mm")))
sketch5.addConstraint(Sketcher.Constraint("DistanceY", -1, 1, 0, 3, Q("15 mm")))
doc.recompute()
hole4 = body.newObject("PartDesign::Hole", "Hole003")
hole4.Profile = sketch5
hole4.ThreadType = "None"
hole4.Diameter = 5
hole4.DepthType = "Dimension"
hole4.Depth = 6000
hole4.DrillPoint = "Flat"

doc.recompute()
